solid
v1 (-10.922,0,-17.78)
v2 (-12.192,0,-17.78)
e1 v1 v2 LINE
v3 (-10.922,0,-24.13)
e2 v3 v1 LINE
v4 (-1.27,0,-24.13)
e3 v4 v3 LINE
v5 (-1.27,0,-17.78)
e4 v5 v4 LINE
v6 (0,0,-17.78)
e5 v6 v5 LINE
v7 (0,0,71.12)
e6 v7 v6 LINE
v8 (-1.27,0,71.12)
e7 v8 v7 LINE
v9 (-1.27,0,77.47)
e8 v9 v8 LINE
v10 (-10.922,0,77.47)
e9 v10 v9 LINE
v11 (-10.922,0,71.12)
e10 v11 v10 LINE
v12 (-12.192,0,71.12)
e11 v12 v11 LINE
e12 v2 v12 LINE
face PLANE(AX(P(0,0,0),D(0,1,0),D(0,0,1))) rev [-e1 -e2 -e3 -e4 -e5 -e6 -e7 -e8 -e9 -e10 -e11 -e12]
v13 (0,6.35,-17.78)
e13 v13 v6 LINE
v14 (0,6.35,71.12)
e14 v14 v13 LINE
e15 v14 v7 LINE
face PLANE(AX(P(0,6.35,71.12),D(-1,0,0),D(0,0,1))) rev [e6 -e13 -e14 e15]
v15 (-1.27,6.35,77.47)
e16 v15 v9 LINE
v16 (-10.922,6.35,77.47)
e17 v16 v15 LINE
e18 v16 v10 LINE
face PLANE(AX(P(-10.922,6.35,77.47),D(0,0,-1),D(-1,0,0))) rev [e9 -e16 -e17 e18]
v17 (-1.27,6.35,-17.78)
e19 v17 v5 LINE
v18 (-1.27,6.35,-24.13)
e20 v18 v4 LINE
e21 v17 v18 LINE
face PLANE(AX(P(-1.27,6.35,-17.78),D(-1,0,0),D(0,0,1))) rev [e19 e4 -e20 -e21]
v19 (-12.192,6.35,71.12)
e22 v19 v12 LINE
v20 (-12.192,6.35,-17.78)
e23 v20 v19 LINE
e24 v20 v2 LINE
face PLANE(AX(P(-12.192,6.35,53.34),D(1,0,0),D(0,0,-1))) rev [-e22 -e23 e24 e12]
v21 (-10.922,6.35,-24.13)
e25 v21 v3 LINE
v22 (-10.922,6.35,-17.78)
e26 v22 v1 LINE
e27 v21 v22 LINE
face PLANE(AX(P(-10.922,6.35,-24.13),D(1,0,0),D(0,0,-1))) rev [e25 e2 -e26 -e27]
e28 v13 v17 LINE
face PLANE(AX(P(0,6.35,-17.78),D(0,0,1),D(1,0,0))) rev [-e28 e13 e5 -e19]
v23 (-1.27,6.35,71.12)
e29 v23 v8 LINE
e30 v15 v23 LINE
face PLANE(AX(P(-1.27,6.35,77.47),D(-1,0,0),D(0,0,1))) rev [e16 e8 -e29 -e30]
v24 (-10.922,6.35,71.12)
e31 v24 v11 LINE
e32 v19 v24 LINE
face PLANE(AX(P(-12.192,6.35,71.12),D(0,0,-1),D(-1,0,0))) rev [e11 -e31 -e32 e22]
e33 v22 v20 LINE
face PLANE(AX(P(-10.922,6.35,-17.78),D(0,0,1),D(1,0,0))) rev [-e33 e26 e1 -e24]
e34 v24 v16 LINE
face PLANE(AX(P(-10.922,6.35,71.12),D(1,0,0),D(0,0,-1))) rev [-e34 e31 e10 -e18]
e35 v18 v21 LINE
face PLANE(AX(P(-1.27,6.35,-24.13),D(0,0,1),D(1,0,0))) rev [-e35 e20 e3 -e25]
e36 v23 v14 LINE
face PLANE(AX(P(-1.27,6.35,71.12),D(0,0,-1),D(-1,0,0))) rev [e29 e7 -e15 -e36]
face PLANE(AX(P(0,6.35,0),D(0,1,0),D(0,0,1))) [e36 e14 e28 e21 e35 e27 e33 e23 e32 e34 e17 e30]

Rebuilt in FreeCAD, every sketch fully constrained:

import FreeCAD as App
import Part
import Sketcher

V = App.Vector
Q = App.Units.Quantity

doc = App.newDocument("Part")
body = doc.addObject("PartDesign::Body", "Body")

# Sketch on XZ plane
sketch1 = body.newObject("Sketcher::SketchObject", "Sketch")
sketch1.AttachmentSupport = (doc.getObject("XZ_Plane"), [""])
sketch1.MapMode = "FlatFace"
sketch1.addGeometry([
    Part.LineSegment(V(0, -17.8, 0), V(-1.3, -17.8, 0)),  # 0
    Part.LineSegment(V(-1.3, -17.8, 0), V(-1.3, -24.1, 0)),  # 1
    Part.LineSegment(V(-1.3, -24.1, 0), V(-10.9, -24.1, 0)),  # 2
    Part.LineSegment(V(-10.9, -24.1, 0), V(-10.9, -17.8, 0)),  # 3
    Part.LineSegment(V(-10.9, -17.8, 0), V(-12.2, -17.8, 0)),  # 4
    Part.LineSegment(V(-12.2, -17.8, 0), V(-12.2, 71.1, 0)),  # 5
    Part.LineSegment(V(-12.2, 71.1, 0), V(-10.9, 71.1, 0)),  # 6
    Part.LineSegment(V(-10.9, 71.1, 0), V(-10.9, 77.5, 0)),  # 7
    Part.LineSegment(V(-10.9, 77.5, 0), V(-1.3, 77.5, 0)),  # 8
    Part.LineSegment(V(-1.3, 77.5, 0), V(-1.3, 71.1, 0)),  # 9
    Part.LineSegment(V(-1.3, 71.1, 0), V(0, 71.1, 0)),  # 10
    Part.LineSegment(V(0, 71.1, 0), V(0, -17.8, 0)),  # 11
], False)
sketch1.addConstraint([
    Sketcher.Constraint("Coincident", 0, 2, 1, 1),
    Sketcher.Constraint("Coincident", 1, 2, 2, 1),
    Sketcher.Constraint("Coincident", 2, 2, 3, 1),
    Sketcher.Constraint("Coincident", 3, 2, 4, 1),
    Sketcher.Constraint("Coincident", 4, 2, 5, 1),
    Sketcher.Constraint("Coincident", 5, 2, 6, 1),
    Sketcher.Constraint("Coincident", 6, 2, 7, 1),
    Sketcher.Constraint("Coincident", 7, 2, 8, 1),
    Sketcher.Constraint("Coincident", 8, 2, 9, 1),
    Sketcher.Constraint("Coincident", 9, 2, 10, 1),
    Sketcher.Constraint("Coincident", 10, 2, 11, 1),
    Sketcher.Constraint("Coincident", 11, 2, 0, 1),
    Sketcher.Constraint("Horizontal", 0),
    Sketcher.Constraint("Vertical", 1),
    Sketcher.Constraint("Horizontal", 2),
    Sketcher.Constraint("Vertical", 3),
    Sketcher.Constraint("Horizontal", 4),
    Sketcher.Constraint("Vertical", 5),
    Sketcher.Constraint("Horizontal", 6),
    Sketcher.Constraint("Vertical", 7),
    Sketcher.Constraint("Horizontal", 8),
    Sketcher.Constraint("Vertical", 9),
    Sketcher.Constraint("Horizontal", 10),
    Sketcher.Constraint("Vertical", 11),
    Sketcher.Constraint("PointOnObject", 10, 2, -2),
    Sketcher.Constraint("Horizontal", 0, 2, 3, 2),
    Sketcher.Constraint("Horizontal", 6, 2, 9, 2),
    Sketcher.Constraint("Vertical", 3, 2, 6, 2),
    Sketcher.Constraint("Vertical", 1, 2, 8, 2),
    Sketcher.Constraint("Equal", 0, 4),
    Sketcher.Constraint("Equal", 3, 7),
    Sketcher.Constraint("DistanceY", 5, 1, 5, 2, Q("3.5 in")),
    Sketcher.Constraint("DistanceX", 0, 2, 0, 1, Q("0.05 in")),
    Sketcher.Constraint("DistanceX", 2, 2, 2, 1, Q("0.38 in")),
    Sketcher.Constraint("DistanceY", 1, 2, 1, 1, Q("0.25 in")),
    Sketcher.Constraint("DistanceY", 0, 2, -1, 1, Q("0.7 in")),
])
pad1 = body.newObject("PartDesign::Pad", "Pad")
pad1.Profile = sketch1
pad1.Length = Q("0.25 in")
pad1.Reversed = True

doc.recompute()
